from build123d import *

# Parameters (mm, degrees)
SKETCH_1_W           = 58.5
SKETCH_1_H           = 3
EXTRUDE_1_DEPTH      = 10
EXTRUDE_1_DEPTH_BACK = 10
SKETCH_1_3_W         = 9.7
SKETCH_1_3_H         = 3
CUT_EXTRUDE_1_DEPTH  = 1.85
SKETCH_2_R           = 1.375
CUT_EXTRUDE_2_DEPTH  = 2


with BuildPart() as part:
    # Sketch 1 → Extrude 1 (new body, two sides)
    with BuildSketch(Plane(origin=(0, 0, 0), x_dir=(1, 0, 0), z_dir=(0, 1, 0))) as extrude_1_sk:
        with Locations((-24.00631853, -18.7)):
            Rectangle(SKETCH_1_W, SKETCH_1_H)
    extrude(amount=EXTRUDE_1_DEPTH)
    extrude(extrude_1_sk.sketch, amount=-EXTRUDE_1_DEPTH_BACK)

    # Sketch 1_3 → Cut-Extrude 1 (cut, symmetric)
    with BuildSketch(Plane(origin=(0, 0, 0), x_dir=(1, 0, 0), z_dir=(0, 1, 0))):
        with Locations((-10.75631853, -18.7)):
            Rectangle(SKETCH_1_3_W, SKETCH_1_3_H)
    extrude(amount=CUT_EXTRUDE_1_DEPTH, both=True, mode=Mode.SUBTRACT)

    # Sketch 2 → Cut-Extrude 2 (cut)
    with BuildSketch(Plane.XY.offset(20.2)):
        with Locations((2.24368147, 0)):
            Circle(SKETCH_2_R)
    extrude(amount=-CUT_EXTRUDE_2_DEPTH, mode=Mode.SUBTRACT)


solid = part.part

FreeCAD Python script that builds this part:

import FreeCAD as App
import Part
import Sketcher
from FreeCAD import Vector

doc = App.newDocument("Part")
params = doc.addObject("Spreadsheet::Sheet", "Params")
for row, (alias, value) in enumerate([
    ("sketch1_height", "3 mm"),
    ("sketch1_width", "58.5 mm"),
    ("pad1_length", "10 mm"),
    ("pad1_length2", "10 mm"),
    ("sketch2_height", "3 mm"),
    ("sketch2_width", "9.7 mm"),
    ("pocket1_length", "3.7 mm"),
    ("sketch3_diameter", "2.75 mm"),
    ("pocket2_length", "2 mm"),
], start=1):
    params.set(f"A{row}", alias)
    params.set(f"B{row}", "=" + value)
    params.setAlias(f"B{row}", alias)

body = doc.addObject("PartDesign::Body", "Body")

sketch1 = doc.addObject("Sketcher::SketchObject", "Sketch")
body.addObject(sketch1)
sketch1.AttachmentSupport = (doc.XZ_Plane, [""])
sketch1.MapMode = "FlatFace"
sketch1.addGeometry(Part.LineSegment(Vector(-53.3, 17.2, 0), Vector(-53.3, 20.2, 0)), False)
sketch1.addGeometry(Part.LineSegment(Vector(-53.3, 20.2, 0), Vector(5.2, 20.2, 0)), False)
sketch1.addGeometry(Part.LineSegment(Vector(5.2, 20.2, 0), Vector(5.2, 17.2, 0)), False)
sketch1.addGeometry(Part.LineSegment(Vector(5.2, 17.2, 0), Vector(-53.3, 17.2, 0)), False)
sketch1.addConstraint(Sketcher.Constraint("Coincident", 0, 2, 1, 1))
sketch1.addConstraint(Sketcher.Constraint("Coincident", 1, 2, 2, 1))
sketch1.addConstraint(Sketcher.Constraint("Coincident", 2, 2, 3, 1))
sketch1.addConstraint(Sketcher.Constraint("Coincident", 3, 2, 0, 1))
sketch1.addConstraint(Sketcher.Constraint("Vertical", 0))
sketch1.addConstraint(Sketcher.Constraint("Horizontal", 1))
sketch1.addConstraint(Sketcher.Constraint("Vertical", 2))
sketch1.addConstraint(Sketcher.Constraint("Horizontal", 3))
sketch1.addConstraint(Sketcher.Constraint("DistanceY", 0, 1, 0, 2, 3.0))
sketch1.addConstraint(Sketcher.Constraint("DistanceX", 1, 1, 1, 2, 58.5))
sketch1.addConstraint(Sketcher.Constraint("DistanceY", -1, 1, 0, 2, 20.2))
sketch1.addConstraint(Sketcher.Constraint("DistanceX", 0, 2, -1, 1, 53.256319))
sketch1.setExpression("Constraints[8]", "Params.sketch1_height")
sketch1.setExpression("Constraints[9]", "Params.sketch1_width")
pad1 = doc.addObject("PartDesign::Pad", "Pad")
body.addObject(pad1)
pad1.Profile = sketch1
pad1.Type = "TwoLengths"
pad1.setExpression("Length", "Params.pad1_length")
pad1.setExpression("Length2", "Params.pad1_length2")
pad1.Reversed = True

sketch2 = doc.addObject("Sketcher::SketchObject", "Sketch001")
body.addObject(sketch2)
sketch2.AttachmentSupport = (doc.XZ_Plane, [""])
sketch2.MapMode = "FlatFace"
sketch2.addGeometry(Part.LineSegment(Vector(-15.6, 17.2, 0), Vector(-15.6, 20.2, 0)), False)
sketch2.addGeometry(Part.LineSegment(Vector(-15.6, 20.2, 0), Vector(-5.9, 20.2, 0)), False)
sketch2.addGeometry(Part.LineSegment(Vector(-5.9, 20.2, 0), Vector(-5.9, 17.2, 0)), False)
sketch2.addGeometry(Part.LineSegment(Vector(-5.9, 17.2, 0), Vector(-15.6, 17.2, 0)), False)
sketch2.addConstraint(Sketcher.Constraint("Coincident", 0, 2, 1, 1))
sketch2.addConstraint(Sketcher.Constraint("Coincident", 1, 2, 2, 1))
sketch2.addConstraint(Sketcher.Constraint("Coincident", 2, 2, 3, 1))
sketch2.addConstraint(Sketcher.Constraint("Coincident", 3, 2, 0, 1))
sketch2.addConstraint(Sketcher.Constraint("Vertical", 0))
sketch2.addConstraint(Sketcher.Constraint("Horizontal", 1))
sketch2.addConstraint(Sketcher.Constraint("Vertical", 2))
sketch2.addConstraint(Sketcher.Constraint("Horizontal", 3))
sketch2.addConstraint(Sketcher.Constraint("DistanceY", 0, 1, 0, 2, 3.0))
sketch2.addConstraint(Sketcher.Constraint("DistanceX", 1, 1, 1, 2, 9.7))
sketch2.addConstraint(Sketcher.Constraint("DistanceY", -1, 1, 0, 2, 20.2))
sketch2.addConstraint(Sketcher.Constraint("DistanceX", 0, 2, -1, 1, 15.606319))
sketch2.setExpression("Constraints[8]", "Params.sketch2_height")
sketch2.setExpression("Constraints[9]", "Params.sketch2_width")
pocket1 = doc.addObject("PartDesign::Pocket", "Pocket")
body.addObject(pocket1)
pocket1.Profile = sketch2
pocket1.setExpression("Length", "Params.pocket1_length")
pocket1.Midplane = True

sketch3 = doc.addObject("Sketcher::SketchObject", "Sketch002")
body.addObject(sketch3)
sketch3.AttachmentSupport = (doc.XY_Plane, [""])
sketch3.MapMode = "FlatFace"
sketch3.AttachmentOffset = App.Placement(Vector(0, 0, 20.2), App.Rotation())
sketch3.addGeometry(Part.Circle(Vector(2.2, 0, 0), Vector(0, 0, 1), 1.4), False)
sketch3.addConstraint(Sketcher.Constraint("PointOnObject", 0, 3, -1))
sketch3.addConstraint(Sketcher.Constraint("Diameter", 0, 2.75))
sketch3.addConstraint(Sketcher.Constraint("DistanceX", -1, 1, 0, 3, 2.243681))
sketch3.setExpression("Constraints[1]", "Params.sketch3_diameter")
pocket2 = doc.addObject("PartDesign::Pocket", "Pocket001")
body.addObject(pocket2)
pocket2.Profile = sketch3
pocket2.setExpression("Length", "Params.pocket2_length")

doc.recompute()
